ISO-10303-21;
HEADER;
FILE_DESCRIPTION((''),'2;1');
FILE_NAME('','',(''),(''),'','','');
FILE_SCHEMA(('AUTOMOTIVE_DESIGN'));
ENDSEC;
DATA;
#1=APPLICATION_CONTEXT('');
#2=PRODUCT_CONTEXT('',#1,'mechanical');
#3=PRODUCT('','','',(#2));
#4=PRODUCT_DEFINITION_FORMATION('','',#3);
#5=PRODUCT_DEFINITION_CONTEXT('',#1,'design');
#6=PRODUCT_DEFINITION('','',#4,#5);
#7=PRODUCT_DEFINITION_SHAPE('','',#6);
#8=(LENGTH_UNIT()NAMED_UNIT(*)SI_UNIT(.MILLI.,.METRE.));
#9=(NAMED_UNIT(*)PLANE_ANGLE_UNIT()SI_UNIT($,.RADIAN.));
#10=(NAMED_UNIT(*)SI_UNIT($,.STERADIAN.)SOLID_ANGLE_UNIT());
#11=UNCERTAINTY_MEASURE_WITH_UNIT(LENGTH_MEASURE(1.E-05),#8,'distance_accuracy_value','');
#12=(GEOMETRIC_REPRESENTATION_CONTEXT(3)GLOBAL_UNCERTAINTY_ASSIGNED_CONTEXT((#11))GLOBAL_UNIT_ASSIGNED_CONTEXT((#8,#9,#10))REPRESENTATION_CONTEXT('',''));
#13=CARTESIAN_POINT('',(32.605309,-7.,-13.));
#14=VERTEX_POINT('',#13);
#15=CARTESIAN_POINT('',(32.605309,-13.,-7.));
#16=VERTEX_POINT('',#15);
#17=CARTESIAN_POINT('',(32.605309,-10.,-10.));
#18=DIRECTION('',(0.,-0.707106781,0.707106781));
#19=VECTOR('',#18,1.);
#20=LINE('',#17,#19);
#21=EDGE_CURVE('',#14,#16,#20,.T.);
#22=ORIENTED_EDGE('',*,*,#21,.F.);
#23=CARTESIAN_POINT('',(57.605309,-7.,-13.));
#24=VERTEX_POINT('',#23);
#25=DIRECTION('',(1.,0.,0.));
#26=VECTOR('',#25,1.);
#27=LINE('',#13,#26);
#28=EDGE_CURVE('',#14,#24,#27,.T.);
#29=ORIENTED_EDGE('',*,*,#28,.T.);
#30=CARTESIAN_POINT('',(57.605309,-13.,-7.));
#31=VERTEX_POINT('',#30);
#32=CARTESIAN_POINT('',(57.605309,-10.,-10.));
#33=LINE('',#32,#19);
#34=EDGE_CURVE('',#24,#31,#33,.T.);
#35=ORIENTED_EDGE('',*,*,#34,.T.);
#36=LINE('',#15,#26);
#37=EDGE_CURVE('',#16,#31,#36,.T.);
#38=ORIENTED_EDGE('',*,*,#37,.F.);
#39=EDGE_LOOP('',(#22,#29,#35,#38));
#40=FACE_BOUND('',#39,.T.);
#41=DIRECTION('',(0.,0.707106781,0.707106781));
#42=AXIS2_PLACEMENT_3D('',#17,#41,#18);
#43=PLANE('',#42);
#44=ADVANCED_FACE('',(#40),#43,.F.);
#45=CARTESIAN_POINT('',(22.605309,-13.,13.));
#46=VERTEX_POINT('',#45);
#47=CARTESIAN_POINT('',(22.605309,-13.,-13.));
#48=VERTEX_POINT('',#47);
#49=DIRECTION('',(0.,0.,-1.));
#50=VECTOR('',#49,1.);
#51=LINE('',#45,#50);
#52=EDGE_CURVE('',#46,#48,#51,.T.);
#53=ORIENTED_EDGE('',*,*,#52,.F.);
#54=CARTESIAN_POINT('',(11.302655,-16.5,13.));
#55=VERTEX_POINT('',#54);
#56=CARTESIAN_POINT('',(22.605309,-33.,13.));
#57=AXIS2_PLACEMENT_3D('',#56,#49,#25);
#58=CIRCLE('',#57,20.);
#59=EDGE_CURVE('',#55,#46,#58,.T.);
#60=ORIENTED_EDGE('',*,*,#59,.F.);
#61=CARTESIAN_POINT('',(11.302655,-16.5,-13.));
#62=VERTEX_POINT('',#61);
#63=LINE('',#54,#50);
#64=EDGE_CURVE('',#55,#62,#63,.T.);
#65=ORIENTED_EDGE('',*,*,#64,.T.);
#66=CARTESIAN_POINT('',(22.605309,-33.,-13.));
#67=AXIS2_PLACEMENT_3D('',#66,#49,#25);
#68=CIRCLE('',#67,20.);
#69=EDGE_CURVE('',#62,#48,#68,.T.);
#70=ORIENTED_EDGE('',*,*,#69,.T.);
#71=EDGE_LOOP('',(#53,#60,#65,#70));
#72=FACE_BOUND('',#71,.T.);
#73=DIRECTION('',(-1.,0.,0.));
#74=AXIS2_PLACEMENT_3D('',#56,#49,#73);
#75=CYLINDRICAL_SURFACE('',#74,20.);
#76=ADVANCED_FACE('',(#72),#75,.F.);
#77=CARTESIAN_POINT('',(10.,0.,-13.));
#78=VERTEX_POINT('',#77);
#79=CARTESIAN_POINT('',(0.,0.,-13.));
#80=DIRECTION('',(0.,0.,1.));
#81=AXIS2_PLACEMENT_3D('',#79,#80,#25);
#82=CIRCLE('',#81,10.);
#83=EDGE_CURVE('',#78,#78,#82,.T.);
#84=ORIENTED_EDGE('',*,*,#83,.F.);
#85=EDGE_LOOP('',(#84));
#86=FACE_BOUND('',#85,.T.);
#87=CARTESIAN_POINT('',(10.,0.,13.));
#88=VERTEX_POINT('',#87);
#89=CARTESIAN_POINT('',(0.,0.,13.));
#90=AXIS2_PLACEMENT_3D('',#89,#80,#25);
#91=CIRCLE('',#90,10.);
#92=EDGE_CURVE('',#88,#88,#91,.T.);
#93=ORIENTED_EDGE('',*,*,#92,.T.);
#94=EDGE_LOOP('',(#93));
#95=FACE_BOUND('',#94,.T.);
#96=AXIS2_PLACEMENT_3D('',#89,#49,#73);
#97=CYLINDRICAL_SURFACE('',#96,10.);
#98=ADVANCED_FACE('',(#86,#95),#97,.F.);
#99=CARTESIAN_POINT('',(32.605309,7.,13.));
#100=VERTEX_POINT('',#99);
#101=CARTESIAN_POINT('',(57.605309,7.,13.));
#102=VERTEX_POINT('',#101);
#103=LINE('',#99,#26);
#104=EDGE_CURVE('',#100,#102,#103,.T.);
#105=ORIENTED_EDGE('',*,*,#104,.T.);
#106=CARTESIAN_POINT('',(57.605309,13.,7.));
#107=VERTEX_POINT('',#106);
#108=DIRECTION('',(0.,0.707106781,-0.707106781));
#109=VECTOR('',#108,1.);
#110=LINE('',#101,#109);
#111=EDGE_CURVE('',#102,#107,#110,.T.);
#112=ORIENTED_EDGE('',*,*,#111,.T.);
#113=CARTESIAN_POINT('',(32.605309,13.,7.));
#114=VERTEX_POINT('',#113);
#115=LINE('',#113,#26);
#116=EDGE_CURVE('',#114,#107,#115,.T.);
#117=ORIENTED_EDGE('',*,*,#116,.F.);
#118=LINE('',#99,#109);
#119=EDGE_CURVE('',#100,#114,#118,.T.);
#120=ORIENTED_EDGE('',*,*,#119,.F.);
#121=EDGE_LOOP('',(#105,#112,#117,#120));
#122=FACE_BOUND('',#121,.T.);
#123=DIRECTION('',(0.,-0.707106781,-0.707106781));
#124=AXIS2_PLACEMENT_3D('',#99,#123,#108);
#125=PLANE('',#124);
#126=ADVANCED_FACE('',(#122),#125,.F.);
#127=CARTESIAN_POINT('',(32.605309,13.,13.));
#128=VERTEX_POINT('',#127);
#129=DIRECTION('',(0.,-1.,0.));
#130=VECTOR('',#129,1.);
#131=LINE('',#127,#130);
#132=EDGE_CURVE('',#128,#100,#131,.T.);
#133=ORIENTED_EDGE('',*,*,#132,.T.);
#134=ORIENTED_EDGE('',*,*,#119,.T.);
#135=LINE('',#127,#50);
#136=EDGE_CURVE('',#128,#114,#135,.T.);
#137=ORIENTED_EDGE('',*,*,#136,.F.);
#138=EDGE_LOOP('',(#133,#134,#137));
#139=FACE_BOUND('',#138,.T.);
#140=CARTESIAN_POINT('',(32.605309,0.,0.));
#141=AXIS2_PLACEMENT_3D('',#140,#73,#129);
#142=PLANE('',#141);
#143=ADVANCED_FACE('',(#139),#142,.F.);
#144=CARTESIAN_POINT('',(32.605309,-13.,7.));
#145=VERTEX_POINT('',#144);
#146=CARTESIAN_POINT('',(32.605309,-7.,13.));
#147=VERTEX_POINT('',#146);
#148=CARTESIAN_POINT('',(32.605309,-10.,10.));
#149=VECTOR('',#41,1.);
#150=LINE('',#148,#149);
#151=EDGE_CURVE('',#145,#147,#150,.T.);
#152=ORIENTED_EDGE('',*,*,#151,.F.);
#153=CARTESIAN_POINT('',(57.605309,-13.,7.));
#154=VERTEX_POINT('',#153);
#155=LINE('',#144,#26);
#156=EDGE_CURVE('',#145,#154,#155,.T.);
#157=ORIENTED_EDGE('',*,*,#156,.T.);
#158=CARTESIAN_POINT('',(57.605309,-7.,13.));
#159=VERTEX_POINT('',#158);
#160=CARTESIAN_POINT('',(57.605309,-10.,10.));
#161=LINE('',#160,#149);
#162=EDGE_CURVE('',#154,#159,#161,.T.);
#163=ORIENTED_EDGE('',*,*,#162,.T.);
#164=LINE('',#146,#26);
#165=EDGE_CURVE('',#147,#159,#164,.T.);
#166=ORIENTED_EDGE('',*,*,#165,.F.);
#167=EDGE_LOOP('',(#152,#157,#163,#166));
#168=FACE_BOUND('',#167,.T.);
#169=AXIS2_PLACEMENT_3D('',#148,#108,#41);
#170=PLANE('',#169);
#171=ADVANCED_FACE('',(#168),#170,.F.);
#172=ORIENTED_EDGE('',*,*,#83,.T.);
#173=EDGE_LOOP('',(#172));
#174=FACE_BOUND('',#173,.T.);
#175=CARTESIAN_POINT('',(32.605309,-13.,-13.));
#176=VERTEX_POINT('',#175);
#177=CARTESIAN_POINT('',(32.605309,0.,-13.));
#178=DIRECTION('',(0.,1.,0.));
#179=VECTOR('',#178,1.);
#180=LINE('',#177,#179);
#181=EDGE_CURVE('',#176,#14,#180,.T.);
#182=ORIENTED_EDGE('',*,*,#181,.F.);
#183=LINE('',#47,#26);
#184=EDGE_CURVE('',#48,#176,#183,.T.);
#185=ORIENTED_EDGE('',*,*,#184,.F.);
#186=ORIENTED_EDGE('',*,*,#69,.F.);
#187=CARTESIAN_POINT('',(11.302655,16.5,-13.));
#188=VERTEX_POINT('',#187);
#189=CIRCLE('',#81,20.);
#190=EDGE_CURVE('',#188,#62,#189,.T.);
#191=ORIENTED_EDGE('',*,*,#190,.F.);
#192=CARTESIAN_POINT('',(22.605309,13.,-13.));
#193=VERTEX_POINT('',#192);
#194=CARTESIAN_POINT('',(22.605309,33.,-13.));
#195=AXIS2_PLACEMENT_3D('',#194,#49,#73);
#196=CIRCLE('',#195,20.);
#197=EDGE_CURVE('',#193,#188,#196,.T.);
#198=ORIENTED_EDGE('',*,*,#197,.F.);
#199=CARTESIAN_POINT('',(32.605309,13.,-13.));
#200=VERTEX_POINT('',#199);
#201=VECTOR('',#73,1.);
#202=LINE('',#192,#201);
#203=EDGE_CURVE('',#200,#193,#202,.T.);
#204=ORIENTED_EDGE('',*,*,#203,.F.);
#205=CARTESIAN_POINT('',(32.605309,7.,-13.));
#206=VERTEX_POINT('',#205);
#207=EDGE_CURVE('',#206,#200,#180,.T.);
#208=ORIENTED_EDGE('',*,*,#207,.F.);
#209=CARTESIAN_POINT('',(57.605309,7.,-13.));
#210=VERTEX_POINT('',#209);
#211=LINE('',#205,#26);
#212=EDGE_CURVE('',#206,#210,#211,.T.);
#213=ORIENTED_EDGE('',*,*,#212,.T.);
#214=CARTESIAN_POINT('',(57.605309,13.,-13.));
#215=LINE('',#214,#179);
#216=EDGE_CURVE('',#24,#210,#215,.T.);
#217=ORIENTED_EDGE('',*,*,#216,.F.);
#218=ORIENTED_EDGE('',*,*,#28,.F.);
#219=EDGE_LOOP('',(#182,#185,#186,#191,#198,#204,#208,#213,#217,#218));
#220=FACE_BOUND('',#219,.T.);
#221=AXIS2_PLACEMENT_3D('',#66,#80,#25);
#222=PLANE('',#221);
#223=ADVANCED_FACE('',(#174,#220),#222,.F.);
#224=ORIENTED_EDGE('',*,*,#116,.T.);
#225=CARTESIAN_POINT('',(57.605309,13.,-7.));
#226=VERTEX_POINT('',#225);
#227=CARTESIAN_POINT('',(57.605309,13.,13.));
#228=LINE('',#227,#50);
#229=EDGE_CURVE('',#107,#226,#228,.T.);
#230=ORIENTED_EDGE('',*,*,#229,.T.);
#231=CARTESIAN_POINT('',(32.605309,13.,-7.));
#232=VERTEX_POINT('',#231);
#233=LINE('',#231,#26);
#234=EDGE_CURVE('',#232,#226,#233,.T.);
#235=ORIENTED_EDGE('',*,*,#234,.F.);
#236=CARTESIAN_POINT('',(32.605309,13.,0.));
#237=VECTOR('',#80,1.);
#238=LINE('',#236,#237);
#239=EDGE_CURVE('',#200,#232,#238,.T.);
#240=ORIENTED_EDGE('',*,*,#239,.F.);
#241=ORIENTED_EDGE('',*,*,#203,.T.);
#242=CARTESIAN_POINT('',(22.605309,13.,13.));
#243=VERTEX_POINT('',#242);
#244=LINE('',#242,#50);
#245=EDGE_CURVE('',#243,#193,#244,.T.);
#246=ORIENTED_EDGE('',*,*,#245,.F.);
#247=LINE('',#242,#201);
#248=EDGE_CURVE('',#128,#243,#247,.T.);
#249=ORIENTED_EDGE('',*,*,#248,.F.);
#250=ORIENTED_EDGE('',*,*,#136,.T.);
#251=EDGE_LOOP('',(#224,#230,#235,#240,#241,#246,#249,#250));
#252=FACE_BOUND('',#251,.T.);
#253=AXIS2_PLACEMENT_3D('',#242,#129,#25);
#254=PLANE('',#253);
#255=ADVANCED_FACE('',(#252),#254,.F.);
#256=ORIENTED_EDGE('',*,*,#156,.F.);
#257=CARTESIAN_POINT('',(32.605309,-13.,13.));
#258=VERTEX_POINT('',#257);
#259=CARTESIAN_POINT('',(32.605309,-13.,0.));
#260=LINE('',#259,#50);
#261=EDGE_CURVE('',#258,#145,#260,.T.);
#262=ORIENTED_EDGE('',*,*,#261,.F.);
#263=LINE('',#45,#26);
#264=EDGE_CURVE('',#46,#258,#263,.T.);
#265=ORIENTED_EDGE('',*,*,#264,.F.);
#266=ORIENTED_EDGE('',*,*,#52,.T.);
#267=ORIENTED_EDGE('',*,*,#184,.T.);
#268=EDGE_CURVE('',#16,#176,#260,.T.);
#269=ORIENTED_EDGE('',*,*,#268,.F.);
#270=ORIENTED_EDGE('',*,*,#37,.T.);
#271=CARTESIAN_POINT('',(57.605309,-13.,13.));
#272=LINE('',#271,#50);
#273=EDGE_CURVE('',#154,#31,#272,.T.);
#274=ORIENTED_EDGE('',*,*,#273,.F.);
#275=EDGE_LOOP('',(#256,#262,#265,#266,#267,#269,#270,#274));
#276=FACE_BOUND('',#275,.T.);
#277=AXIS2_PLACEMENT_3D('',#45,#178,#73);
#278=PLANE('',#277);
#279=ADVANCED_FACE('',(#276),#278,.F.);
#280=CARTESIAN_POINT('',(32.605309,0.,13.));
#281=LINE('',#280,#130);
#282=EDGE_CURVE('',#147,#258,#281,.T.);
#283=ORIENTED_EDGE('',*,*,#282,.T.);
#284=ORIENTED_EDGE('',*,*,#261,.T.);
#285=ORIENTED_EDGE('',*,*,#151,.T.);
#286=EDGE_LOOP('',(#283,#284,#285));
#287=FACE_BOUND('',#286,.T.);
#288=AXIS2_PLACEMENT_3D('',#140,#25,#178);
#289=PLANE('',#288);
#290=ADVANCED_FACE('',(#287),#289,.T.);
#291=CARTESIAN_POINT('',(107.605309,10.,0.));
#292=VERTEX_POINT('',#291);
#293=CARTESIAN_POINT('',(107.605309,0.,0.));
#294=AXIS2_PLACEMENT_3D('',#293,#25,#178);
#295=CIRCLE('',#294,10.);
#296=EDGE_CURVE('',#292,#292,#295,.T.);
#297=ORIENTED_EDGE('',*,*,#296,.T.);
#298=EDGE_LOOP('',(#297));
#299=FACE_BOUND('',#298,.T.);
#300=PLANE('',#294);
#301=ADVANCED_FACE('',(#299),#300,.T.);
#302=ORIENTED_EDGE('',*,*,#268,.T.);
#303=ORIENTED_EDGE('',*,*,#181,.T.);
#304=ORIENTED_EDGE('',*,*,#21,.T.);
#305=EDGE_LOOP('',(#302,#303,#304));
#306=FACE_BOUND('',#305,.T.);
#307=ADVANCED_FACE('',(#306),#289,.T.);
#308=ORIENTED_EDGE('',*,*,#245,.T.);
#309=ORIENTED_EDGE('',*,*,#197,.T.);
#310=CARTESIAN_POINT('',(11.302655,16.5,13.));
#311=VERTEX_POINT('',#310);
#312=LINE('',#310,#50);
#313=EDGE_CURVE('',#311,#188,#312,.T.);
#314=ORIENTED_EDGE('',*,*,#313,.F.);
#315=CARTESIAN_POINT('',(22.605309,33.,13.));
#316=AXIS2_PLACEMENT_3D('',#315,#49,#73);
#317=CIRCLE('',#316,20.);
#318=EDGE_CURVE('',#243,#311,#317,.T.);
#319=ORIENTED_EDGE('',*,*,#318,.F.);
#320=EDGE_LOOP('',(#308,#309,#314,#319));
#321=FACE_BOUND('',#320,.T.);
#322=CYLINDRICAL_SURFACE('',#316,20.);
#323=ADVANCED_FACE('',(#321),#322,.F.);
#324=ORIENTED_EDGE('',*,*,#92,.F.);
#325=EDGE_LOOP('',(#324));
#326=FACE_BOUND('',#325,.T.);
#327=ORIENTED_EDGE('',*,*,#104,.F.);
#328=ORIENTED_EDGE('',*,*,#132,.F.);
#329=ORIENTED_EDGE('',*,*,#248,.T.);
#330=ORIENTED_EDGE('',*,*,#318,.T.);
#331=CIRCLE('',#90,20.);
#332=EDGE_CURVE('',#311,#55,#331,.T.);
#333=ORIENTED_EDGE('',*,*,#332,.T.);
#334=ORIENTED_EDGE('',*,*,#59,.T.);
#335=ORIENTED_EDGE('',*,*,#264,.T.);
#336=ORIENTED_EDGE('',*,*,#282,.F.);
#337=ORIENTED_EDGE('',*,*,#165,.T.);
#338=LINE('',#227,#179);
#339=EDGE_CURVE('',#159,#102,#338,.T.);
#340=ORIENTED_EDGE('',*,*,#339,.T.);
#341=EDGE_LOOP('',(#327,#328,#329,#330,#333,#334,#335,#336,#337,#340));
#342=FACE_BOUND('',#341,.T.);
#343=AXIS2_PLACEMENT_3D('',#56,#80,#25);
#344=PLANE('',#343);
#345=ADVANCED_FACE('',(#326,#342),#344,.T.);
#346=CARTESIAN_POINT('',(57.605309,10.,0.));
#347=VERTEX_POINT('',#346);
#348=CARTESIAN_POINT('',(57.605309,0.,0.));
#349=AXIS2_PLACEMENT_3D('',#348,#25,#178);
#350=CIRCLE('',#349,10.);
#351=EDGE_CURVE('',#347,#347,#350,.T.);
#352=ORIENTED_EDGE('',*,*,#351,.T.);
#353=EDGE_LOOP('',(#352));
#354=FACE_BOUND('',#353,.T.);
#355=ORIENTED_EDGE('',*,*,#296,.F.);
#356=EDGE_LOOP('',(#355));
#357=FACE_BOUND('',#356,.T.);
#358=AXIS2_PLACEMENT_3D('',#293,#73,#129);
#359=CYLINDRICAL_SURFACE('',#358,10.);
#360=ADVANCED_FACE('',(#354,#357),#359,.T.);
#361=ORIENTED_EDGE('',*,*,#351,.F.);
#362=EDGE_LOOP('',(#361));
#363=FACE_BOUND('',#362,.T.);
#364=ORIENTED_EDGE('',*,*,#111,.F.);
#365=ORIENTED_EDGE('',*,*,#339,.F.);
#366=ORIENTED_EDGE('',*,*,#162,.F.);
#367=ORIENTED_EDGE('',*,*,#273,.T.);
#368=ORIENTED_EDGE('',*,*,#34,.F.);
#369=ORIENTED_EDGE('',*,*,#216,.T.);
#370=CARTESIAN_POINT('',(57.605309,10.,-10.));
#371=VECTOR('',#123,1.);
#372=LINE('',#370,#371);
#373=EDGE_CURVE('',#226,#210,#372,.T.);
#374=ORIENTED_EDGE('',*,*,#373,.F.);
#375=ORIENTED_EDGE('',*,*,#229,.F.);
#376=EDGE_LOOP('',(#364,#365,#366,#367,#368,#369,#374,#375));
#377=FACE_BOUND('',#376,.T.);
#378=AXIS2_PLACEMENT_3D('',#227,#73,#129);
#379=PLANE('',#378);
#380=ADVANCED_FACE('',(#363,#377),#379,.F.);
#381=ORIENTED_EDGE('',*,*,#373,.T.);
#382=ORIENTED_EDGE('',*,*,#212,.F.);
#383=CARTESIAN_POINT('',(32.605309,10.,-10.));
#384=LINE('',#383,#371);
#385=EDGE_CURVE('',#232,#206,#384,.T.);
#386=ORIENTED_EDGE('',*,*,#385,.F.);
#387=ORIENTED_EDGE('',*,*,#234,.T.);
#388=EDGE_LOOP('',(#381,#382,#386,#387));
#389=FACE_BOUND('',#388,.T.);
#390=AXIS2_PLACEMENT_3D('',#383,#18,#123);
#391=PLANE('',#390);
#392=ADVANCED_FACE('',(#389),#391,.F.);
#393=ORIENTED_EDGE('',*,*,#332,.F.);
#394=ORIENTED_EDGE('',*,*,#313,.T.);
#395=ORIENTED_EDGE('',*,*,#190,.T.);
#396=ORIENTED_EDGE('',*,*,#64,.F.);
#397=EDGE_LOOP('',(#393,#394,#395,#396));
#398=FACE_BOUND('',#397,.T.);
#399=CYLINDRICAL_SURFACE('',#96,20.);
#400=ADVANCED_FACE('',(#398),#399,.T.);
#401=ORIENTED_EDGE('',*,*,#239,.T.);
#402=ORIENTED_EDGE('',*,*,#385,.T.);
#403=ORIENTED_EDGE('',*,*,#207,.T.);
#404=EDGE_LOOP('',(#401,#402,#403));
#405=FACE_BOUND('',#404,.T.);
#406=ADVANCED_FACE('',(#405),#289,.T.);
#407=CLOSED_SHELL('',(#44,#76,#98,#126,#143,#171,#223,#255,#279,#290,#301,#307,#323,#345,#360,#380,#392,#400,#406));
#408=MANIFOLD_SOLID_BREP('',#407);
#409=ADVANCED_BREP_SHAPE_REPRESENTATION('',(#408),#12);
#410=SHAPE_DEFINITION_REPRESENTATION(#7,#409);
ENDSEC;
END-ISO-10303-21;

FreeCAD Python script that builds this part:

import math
import FreeCAD as App
import Part
import Sketcher

V = App.Vector
Q = App.Units.Quantity

doc = App.newDocument("Part")
body = doc.addObject("PartDesign::Body", "Body")

# Sketch on XY plane
sketch1 = body.newObject("Sketcher::SketchObject", "Sketch")
sketch1.AttachmentSupport = (doc.getObject("XY_Plane"), [""])
sketch1.MapMode = "FlatFace"
sketch1.addGeometry(Part.LineSegment(V(58, -13, 0), V(58, 13, 0)), False)
sketch1.addGeometry(Part.LineSegment(V(58, 13, 0), V(23, 13, 0)), False)
sketch1.addGeometry(Part.ArcOfCircle(Part.Circle(V(23, 33, 0), V(0, 0, 1), 20), math.radians(-124), math.radians(-90)), False)
sketch1.addGeometry(Part.ArcOfCircle(Part.Circle(V(0, 0, 0), V(0, 0, 1), 20), math.radians(56), math.radians(304)), False)
sketch1.addGeometry(Part.ArcOfCircle(Part.Circle(V(23, -33, 0), V(0, 0, 1), 20), math.radians(90), math.radians(124)), False)
sketch1.addGeometry(Part.LineSegment(V(23, -13, 0), V(58, -13, 0)), False)
sketch1.addGeometry(Part.Circle(V(0, 0, 0), V(0, 0, 1), 10), False)
sketch1.addConstraint(Sketcher.Constraint("Coincident", 0, 2, 1, 1))
sketch1.addConstraint(Sketcher.Constraint("Tangent", 1, 2, 2, 2))
sketch1.addConstraint(Sketcher.Constraint("Tangent", 2, 1, 3, 1))
sketch1.addConstraint(Sketcher.Constraint("Tangent", 3, 2, 4, 2))
sketch1.addConstraint(Sketcher.Constraint("Tangent", 4, 1, 5, 1))
sketch1.addConstraint(Sketcher.Constraint("Coincident", 5, 2, 0, 1))
sketch1.addConstraint(Sketcher.Constraint("Vertical", 0))
sketch1.addConstraint(Sketcher.Constraint("Horizontal", 1))
sketch1.addConstraint(Sketcher.Constraint("Horizontal", 5))
sketch1.addConstraint(Sketcher.Constraint("Coincident", 3, 3, -1, 1))
sketch1.addConstraint(Sketcher.Constraint("Coincident", 6, 3, -1, 1))
sketch1.addConstraint(Sketcher.Constraint("Equal", 2, 3))
sketch1.addConstraint(Sketcher.Constraint("Equal", 3, 4))
sketch1.addConstraint(Sketcher.Constraint("Vertical", 2, 3, 4, 3))
sketch1.addConstraint(Sketcher.Constraint("Diameter", 6, Q("20 mm")))
sketch1.addConstraint(Sketcher.Constraint("Radius", 2, Q("20 mm")))
sketch1.addConstraint(Sketcher.Constraint("DistanceX", 1, 2, 1, 1, Q("35 mm")))
sketch1.addConstraint(Sketcher.Constraint("DistanceY", 0, 1, 0, 2, Q("26 mm")))
pad1 = body.newObject("PartDesign::Pad", "Pad")
pad1.Profile = sketch1
pad1.Length = 26
pad1.Midplane = True

# Sketch on YZ plane
sketch2 = body.newObject("Sketcher::SketchObject", "Sketch001")
sketch2.AttachmentSupport = (doc.getObject("YZ_Plane"), [""])
sketch2.MapMode = "FlatFace"
sketch2.AttachmentOffset = App.Placement(V(0, 0, 57.605309), App.Rotation())
sketch2.addGeometry(Part.LineSegment(V(7, -13, 0), V(13, -13, 0)), False)
sketch2.addGeometry(Part.LineSegment(V(13, -13, 0), V(13, -7, 0)), False)
sketch2.addGeometry(Part.LineSegment(V(13, -7, 0), V(7, -13, 0)), False)
sketch2.addGeometry(Part.LineSegment(V(-13, -13, 0), V(-7, -13, 0)), False)
sketch2.addGeometry(Part.LineSegment(V(-7, -13, 0), V(-13, -7, 0)), False)
sketch2.addGeometry(Part.LineSegment(V(-13, -7, 0), V(-13, -13, 0)), False)
sketch2.addGeometry(Part.LineSegment(V(-13, 13, 0), V(-13, 7, 0)), False)
sketch2.addGeometry(Part.LineSegment(V(-13, 7, 0), V(-7, 13, 0)), False)
sketch2.addGeometry(Part.LineSegment(V(-7, 13, 0), V(-13, 13, 0)), False)
sketch2.addGeometry(Part.LineSegment(V(13, 13, 0), V(7, 13, 0)), False)
sketch2.addGeometry(Part.LineSegment(V(7, 13, 0), V(13, 7, 0)), False)
sketch2.addGeometry(Part.LineSegment(V(13, 7, 0), V(13, 13, 0)), False)
sketch2.addConstraint(Sketcher.Constraint("Coincident", 0, 2, 1, 1))
sketch2.addConstraint(Sketcher.Constraint("Coincident", 1, 2, 2, 1))
sketch2.addConstraint(Sketcher.Constraint("Coincident", 2, 2, 0, 1))
sketch2.addConstraint(Sketcher.Constraint("Coincident", 3, 2, 4, 1))
sketch2.addConstraint(Sketcher.Constraint("Coincident", 4, 2, 5, 1))
sketch2.addConstraint(Sketcher.Constraint("Coincident", 5, 2, 3, 1))
sketch2.addConstraint(Sketcher.Constraint("Coincident", 6, 2, 7, 1))
sketch2.addConstraint(Sketcher.Constraint("Coincident", 7, 2, 8, 1))
sketch2.addConstraint(Sketcher.Constraint("Coincident", 8, 2, 6, 1))
sketch2.addConstraint(Sketcher.Constraint("Coincident", 9, 2, 10, 1))
sketch2.addConstraint(Sketcher.Constraint("Coincident", 10, 2, 11, 1))
sketch2.addConstraint(Sketcher.Constraint("Coincident", 11, 2, 9, 1))
sketch2.addConstraint(Sketcher.Constraint("Horizontal", 0))
sketch2.addConstraint(Sketcher.Constraint("Vertical", 1))
sketch2.addConstraint(Sketcher.Constraint("Horizontal", 3))
sketch2.addConstraint(Sketcher.Constraint("Vertical", 5))
sketch2.addConstraint(Sketcher.Constraint("Vertical", 6))
sketch2.addConstraint(Sketcher.Constraint("Horizontal", 8))
sketch2.addConstraint(Sketcher.Constraint("Horizontal", 9))
sketch2.addConstraint(Sketcher.Constraint("Vertical", 11))
sketch2.addConstraint(Sketcher.Constraint("Symmetric", 1, 2, 6, 2, -1, 1))
sketch2.addConstraint(Sketcher.Constraint("Symmetric", 2, 2, 7, 2, -1, 1))
sketch2.addConstraint(Sketcher.Constraint("Symmetric", 3, 2, 9, 2, -1, 1))
sketch2.addConstraint(Sketcher.Constraint("Symmetric", 4, 2, 10, 2, -1, 1))
sketch2.addConstraint(Sketcher.Constraint("Symmetric", 2, 2, 3, 2, -2))
sketch2.addConstraint(Sketcher.Constraint("Symmetric", 1, 2, 4, 2, -2))
sketch2.addConstraint(Sketcher.Constraint("Perpendicular", 2, 4))
sketch2.addConstraint(Sketcher.Constraint("DistanceX", 0, 1, 0, 2, Q("6 mm")))
sketch2.addConstraint(Sketcher.Constraint("DistanceX", -1, 1, 0, 2, Q("13 mm")))
sketch2.addConstraint(Sketcher.Constraint("DistanceY", 0, 2, -1, 1, Q("13 mm")))
pocket1 = body.newObject("PartDesign::Pocket", "Pocket")
pocket1.Profile = sketch2
pocket1.Length = 25

# Sketch on YZ plane
sketch3 = body.newObject("Sketcher::SketchObject", "Sketch002")
sketch3.AttachmentSupport = (doc.getObject("YZ_Plane"), [""])
sketch3.MapMode = "FlatFace"
sketch3.AttachmentOffset = App.Placement(V(0, 0, 57.605309), App.Rotation())
sketch3.addGeometry(Part.Circle(V(0, 0, 0), V(0, 0, 1), 10), False)
sketch3.addConstraint(Sketcher.Constraint("Coincident", 0, 3, -1, 1))
sketch3.addConstraint(Sketcher.Constraint("Diameter", 0, Q("20 mm")))
pad2 = body.newObject("PartDesign::Pad", "Pad001")
pad2.Profile = sketch3
pad2.Length = 50

doc.recompute()
